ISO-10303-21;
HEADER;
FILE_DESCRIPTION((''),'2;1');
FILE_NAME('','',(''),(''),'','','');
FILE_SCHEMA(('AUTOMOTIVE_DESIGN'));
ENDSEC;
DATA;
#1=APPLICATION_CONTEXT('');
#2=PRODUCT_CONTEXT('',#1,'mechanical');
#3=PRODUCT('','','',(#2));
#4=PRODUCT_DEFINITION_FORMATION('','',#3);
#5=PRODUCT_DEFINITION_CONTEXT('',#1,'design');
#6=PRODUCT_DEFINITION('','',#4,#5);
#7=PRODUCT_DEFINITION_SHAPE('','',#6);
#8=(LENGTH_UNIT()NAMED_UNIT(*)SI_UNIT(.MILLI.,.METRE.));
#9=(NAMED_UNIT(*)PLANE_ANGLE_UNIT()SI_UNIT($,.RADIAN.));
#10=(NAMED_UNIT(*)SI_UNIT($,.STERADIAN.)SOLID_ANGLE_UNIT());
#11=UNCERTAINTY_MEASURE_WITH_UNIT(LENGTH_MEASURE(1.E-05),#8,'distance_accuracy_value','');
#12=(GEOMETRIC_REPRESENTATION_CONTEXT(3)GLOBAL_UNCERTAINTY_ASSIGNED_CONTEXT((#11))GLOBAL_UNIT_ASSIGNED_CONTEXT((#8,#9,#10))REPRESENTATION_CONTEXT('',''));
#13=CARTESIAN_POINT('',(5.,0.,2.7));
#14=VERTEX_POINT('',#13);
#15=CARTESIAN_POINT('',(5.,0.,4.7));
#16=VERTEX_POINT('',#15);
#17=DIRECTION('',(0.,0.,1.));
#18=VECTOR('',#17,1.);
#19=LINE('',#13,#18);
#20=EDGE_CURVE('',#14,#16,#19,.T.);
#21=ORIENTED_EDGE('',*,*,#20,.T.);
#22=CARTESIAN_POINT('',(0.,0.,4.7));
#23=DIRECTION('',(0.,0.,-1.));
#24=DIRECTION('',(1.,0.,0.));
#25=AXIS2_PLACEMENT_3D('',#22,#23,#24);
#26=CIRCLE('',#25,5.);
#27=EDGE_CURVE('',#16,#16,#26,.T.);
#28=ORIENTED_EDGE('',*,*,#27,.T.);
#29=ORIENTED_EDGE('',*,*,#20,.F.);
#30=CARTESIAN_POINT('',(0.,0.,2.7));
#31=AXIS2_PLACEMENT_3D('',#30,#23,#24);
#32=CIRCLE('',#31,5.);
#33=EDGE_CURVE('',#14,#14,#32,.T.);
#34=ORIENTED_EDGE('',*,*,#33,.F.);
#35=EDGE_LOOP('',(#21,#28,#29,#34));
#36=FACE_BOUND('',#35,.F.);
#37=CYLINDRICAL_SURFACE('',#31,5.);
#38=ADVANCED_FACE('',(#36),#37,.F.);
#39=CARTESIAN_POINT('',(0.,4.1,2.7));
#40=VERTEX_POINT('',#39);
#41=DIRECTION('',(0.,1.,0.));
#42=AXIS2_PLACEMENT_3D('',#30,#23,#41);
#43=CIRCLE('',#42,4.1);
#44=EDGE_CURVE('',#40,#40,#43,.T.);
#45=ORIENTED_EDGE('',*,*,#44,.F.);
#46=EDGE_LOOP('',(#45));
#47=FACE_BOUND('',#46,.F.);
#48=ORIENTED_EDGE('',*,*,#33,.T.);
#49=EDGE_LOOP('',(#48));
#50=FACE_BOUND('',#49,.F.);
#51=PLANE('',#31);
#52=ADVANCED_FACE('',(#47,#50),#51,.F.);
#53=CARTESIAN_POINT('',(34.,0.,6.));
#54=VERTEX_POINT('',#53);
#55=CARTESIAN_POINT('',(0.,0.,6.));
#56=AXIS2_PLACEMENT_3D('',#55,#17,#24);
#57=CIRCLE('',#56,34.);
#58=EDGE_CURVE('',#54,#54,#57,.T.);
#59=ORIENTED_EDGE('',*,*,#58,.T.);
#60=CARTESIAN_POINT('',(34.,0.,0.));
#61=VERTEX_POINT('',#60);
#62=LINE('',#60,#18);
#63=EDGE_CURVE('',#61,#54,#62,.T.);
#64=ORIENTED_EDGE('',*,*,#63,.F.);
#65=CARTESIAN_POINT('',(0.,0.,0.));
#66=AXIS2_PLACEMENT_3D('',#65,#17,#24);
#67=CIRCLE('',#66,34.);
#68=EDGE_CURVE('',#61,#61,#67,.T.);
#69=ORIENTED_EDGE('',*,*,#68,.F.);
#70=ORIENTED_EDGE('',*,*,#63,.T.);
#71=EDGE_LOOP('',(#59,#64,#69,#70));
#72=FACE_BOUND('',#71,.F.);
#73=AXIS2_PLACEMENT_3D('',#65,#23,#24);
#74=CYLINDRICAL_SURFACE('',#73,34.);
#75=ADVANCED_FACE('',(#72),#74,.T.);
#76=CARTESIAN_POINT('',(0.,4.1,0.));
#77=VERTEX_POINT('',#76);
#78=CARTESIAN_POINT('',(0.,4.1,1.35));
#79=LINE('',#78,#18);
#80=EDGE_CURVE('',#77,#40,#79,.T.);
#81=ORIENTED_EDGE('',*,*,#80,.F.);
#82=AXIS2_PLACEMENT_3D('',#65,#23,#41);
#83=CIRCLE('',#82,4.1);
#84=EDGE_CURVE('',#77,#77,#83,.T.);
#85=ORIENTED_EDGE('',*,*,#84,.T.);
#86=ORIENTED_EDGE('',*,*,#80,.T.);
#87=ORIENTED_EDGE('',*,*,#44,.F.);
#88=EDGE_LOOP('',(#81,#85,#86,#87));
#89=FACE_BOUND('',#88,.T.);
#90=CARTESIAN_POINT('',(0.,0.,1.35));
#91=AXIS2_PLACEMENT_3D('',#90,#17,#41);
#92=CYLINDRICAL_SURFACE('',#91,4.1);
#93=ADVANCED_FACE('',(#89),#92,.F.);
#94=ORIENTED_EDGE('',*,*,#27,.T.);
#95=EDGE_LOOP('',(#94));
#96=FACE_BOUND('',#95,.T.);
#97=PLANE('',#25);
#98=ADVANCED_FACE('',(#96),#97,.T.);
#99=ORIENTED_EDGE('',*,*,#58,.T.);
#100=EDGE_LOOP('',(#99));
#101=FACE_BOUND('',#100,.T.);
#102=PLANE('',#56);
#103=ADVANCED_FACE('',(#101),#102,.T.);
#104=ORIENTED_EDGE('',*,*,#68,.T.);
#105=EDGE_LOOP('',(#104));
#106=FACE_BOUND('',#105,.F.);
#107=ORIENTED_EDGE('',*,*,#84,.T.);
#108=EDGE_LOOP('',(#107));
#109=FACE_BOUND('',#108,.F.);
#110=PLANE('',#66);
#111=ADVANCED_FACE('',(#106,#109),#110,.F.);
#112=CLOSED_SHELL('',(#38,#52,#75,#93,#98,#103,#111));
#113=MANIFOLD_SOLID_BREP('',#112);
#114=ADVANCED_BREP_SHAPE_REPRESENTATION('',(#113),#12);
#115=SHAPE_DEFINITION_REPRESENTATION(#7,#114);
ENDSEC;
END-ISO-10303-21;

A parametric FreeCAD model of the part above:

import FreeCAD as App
import Part
import Sketcher
from FreeCAD import Vector
Q = App.Units.Quantity


def add_polygon(sketch, points):
    """Adds a closed chain of lines whose ends are joined by coincident constraints."""
    first, n = sketch.GeometryCount, len(points)
    for a, b in zip(points, points[1:] + points[:1]):
        sketch.addGeometry(Part.LineSegment(App.Vector(*a, 0), App.Vector(*b, 0)), False)
    for i in range(n):
        sketch.addConstraint(Sketcher.Constraint("Coincident", first + i, 2, first + (i + 1) % n, 1))

doc = App.newDocument("Part")
body = doc.addObject("PartDesign::Body", "Body")

# Sketch on XY plane
sketch1 = doc.addObject("Sketcher::SketchObject", "Sketch")
body.addObject(sketch1)
sketch1.AttachmentSupport = (doc.XY_Plane, [""])
sketch1.MapMode = "FlatFace"
sketch1.addGeometry(Part.Circle(Vector(0, 0, 0), Vector(0, 0, 1), 34), False)
sketch1.addConstraint([
    Sketcher.Constraint("Coincident", 0, 3, -1, 1),
    Sketcher.Constraint("Diameter", 0, Q("68 mm")),
])
pad1 = doc.addObject("PartDesign::Pad", "Pad")
body.addObject(pad1)
pad1.Profile = sketch1
pad1.Length = 6

# Sketch on YZ plane
sketch2 = doc.addObject("Sketcher::SketchObject", "Sketch001")
body.addObject(sketch2)
sketch2.AttachmentSupport = (doc.YZ_Plane, [""])
sketch2.MapMode = "FlatFace"
add_polygon(sketch2, [(0, 2.7), (0, 0), (4.1, 0), (4.1, 2.7)])  # lines 0-3
sketch2.addConstraint([
    Sketcher.Constraint("Vertical", 0),
    Sketcher.Constraint("Horizontal", 1),
    Sketcher.Constraint("Vertical", 2),
    Sketcher.Constraint("Horizontal", 3),
    Sketcher.Constraint("Coincident", 0, 2, -1, 1),
    Sketcher.Constraint("DistanceX", 1, 1, 1, 2, Q("4.1 mm")),
    Sketcher.Constraint("DistanceY", 0, 2, 0, 1, Q("2.7 mm")),
])
groove = doc.addObject("PartDesign::Groove", "Groove")
body.addObject(groove)
groove.Profile = sketch2
groove.ReferenceAxis = (sketch2, ["V_Axis"])
groove.Angle = 360

# Sketch on XY plane
sketch3 = doc.addObject("Sketcher::SketchObject", "Sketch002")
body.addObject(sketch3)
sketch3.AttachmentSupport = (doc.XY_Plane, [""])
sketch3.MapMode = "FlatFace"
sketch3.AttachmentOffset = App.Placement(Vector(0, 0, 2.7), App.Rotation())
sketch3.addGeometry(Part.Circle(Vector(0, 0, 0), Vector(0, 0, 1), 5), False)
sketch3.addConstraint([
    Sketcher.Constraint("Coincident", 0, 3, -1, 1),
    Sketcher.Constraint("Diameter", 0, Q("10 mm")),
])
pocket1 = doc.addObject("PartDesign::Pocket", "Pocket")
body.addObject(pocket1)
pocket1.Profile = sketch3
pocket1.Length = 2
pocket1.Reversed = True

doc.recompute()
